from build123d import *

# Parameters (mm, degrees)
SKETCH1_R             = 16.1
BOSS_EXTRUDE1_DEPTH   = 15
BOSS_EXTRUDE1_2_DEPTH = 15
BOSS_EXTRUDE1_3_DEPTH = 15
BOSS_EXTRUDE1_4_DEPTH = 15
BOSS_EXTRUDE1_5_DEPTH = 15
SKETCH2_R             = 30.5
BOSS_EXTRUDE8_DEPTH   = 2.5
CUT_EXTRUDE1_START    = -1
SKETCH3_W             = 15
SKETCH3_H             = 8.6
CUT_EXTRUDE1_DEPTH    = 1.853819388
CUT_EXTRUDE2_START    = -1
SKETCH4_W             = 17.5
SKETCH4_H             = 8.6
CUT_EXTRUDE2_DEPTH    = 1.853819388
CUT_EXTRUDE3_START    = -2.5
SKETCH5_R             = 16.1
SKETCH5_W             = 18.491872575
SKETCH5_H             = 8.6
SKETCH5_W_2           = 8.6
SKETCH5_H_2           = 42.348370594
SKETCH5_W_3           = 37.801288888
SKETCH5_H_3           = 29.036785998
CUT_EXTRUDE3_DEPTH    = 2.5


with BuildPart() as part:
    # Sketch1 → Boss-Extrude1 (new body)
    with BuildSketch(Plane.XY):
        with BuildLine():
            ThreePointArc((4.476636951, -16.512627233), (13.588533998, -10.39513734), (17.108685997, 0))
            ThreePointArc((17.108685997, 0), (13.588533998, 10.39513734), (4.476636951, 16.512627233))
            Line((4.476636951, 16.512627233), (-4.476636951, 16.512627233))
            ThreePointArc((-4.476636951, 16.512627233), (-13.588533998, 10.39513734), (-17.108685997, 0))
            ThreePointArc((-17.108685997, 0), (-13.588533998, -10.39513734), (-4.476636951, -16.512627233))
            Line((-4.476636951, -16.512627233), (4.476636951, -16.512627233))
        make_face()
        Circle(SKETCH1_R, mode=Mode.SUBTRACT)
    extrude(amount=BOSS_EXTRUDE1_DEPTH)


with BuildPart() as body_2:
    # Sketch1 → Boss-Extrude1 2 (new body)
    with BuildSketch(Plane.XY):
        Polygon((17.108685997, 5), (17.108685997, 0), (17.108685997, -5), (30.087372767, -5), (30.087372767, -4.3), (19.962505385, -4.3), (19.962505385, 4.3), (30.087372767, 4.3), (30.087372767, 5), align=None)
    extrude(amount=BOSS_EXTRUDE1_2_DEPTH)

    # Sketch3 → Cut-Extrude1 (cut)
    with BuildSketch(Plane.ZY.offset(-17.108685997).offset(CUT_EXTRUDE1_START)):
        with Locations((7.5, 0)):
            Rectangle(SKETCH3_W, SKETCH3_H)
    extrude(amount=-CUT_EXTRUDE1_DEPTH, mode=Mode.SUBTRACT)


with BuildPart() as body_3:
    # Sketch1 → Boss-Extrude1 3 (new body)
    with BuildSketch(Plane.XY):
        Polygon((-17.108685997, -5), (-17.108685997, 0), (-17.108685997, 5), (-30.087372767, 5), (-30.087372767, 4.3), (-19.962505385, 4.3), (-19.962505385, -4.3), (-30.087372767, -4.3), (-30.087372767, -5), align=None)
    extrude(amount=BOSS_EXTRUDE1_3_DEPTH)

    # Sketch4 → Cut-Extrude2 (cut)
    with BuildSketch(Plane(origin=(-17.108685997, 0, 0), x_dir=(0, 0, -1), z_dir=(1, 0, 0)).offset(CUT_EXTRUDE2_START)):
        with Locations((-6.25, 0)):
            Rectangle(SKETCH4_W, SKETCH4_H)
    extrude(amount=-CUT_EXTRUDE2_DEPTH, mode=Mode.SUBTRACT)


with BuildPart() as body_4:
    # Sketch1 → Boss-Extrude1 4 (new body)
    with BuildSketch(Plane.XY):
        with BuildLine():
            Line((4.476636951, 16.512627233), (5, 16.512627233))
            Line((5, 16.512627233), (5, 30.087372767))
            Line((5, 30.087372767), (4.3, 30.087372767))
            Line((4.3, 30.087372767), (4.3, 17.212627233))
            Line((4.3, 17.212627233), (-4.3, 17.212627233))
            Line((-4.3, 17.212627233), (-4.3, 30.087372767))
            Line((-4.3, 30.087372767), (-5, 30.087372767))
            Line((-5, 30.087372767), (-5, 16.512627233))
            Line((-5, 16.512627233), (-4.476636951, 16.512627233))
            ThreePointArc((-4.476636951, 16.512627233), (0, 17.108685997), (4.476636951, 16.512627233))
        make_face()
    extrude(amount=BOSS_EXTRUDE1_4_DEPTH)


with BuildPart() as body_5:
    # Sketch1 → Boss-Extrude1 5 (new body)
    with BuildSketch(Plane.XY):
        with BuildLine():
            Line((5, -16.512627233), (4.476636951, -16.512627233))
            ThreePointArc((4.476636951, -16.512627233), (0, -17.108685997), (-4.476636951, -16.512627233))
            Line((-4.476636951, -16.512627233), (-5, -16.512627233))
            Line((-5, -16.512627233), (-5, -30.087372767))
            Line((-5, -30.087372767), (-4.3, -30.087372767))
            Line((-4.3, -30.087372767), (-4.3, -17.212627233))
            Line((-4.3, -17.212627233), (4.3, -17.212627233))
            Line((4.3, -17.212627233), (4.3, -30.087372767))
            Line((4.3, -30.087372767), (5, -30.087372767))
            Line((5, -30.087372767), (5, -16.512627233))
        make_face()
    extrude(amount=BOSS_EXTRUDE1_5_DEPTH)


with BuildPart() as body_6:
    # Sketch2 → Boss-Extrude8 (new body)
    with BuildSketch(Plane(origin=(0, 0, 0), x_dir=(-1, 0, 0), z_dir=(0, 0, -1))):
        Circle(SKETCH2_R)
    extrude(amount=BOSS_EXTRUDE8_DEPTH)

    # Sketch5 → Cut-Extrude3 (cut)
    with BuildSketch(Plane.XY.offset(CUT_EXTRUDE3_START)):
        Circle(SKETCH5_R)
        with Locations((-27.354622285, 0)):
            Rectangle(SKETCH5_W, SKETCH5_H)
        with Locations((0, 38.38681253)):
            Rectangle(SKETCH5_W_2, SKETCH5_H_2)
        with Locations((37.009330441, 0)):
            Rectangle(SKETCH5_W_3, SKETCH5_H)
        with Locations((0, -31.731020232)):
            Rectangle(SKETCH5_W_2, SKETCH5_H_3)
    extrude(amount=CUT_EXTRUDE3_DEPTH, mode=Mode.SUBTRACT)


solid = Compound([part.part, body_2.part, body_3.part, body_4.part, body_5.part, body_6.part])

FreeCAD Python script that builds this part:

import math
import FreeCAD as App
import Part
import Sketcher
Q = App.Units.Quantity


def add_polygon(sketch, points):
    """Adds a closed chain of lines whose ends are joined by coincident constraints."""
    first, n = sketch.GeometryCount, len(points)
    for a, b in zip(points, points[1:] + points[:1]):
        sketch.addGeometry(Part.LineSegment(App.Vector(*a, 0), App.Vector(*b, 0)), False)
    for i in range(n):
        sketch.addConstraint(Sketcher.Constraint("Coincident", first + i, 2, first + (i + 1) % n, 1))

doc = App.newDocument("Part")
body = doc.addObject("PartDesign::Body", "Body")

sketch1 = body.newObject("Sketcher::SketchObject", "Sketch")
sketch1.AttachmentSupport = (doc.getObject("XY_Plane"), [""])
sketch1.MapMode = "FlatFace"
sketch1.addGeometry([
    Part.ArcOfCircle(Part.Circle(App.Vector(0, 0, 0), App.Vector(0, 0, 1), 17), math.radians(-75), math.radians(0)),
    Part.ArcOfCircle(Part.Circle(App.Vector(0, 0, 0), App.Vector(0, 0, 1), 17), math.radians(0), math.radians(75)),
    Part.LineSegment(App.Vector(4, 17, 0), App.Vector(-4, 17, 0)),
    Part.ArcOfCircle(Part.Circle(App.Vector(0, 0, 0), App.Vector(0, 0, 1), 17), math.radians(105), math.radians(180)),
    Part.ArcOfCircle(Part.Circle(App.Vector(0, 0, 0), App.Vector(0, 0, 1), 17), math.radians(-180), math.radians(-105)),
    Part.LineSegment(App.Vector(-4, -17, 0), App.Vector(4, -17, 0)),
    Part.Circle(App.Vector(0, 0, 0), App.Vector(0, 0, 1), 16),
], False)
sketch1.addConstraint([
    Sketcher.Constraint("Tangent", 0, 2, 1, 1),
    Sketcher.Constraint("Coincident", 1, 2, 2, 1),
    Sketcher.Constraint("Coincident", 2, 2, 3, 1),
    Sketcher.Constraint("Tangent", 3, 2, 4, 1),
    Sketcher.Constraint("Coincident", 4, 2, 5, 1),
    Sketcher.Constraint("Coincident", 5, 2, 0, 1),
    Sketcher.Constraint("Horizontal", 2),
    Sketcher.Constraint("Horizontal", 5),
    Sketcher.Constraint("Coincident", 0, 3, -1, 1),
    Sketcher.Constraint("Coincident", 3, 3, -1, 1),
    Sketcher.Constraint("Coincident", 6, 3, -1, 1),
    Sketcher.Constraint("Equal", 0, 1),
    Sketcher.Constraint("Equal", 1, 3),
    Sketcher.Constraint("Equal", 3, 4),
    Sketcher.Constraint("PointOnObject", 0, 2, -1),
    Sketcher.Constraint("PointOnObject", 3, 2, -1),
    Sketcher.Constraint("Vertical", 2, 2, 4, 2),
    Sketcher.Constraint("Diameter", 6, Q("32.2 mm")),
    Sketcher.Constraint("Radius", 0, Q("17.108686 mm")),
    Sketcher.Constraint("DistanceX", 2, 2, 2, 1, Q("8.953274 mm")),
])
pad1 = body.newObject("PartDesign::Pad", "Pad")
pad1.Profile = sketch1
pad1.Length = 15
body2 = doc.addObject("PartDesign::Body", "Body001")

sketch2 = body2.newObject("Sketcher::SketchObject", "Sketch001")
sketch2.AttachmentSupport = (doc.getObject("XY_Plane001"), [""])
sketch2.MapMode = "FlatFace"
add_polygon(sketch2, [(17.1, 5), (17.1, -5), (30.1, -5), (30.1, -4.3), (20, -4.3), (20, 4.3), (30.1, 4.3), (30.1, 5)])
sketch2.addConstraint([
    Sketcher.Constraint("Vertical", 0),
    Sketcher.Constraint("Horizontal", 1),
    Sketcher.Constraint("Vertical", 2),
    Sketcher.Constraint("Horizontal", 3),
    Sketcher.Constraint("Vertical", 4),
    Sketcher.Constraint("Horizontal", 5),
    Sketcher.Constraint("Vertical", 6),
    Sketcher.Constraint("Horizontal", 7),
    Sketcher.Constraint("Symmetric", 2, 2, 5, 2, -1),
    Sketcher.Constraint("Equal", 2, 6),
    Sketcher.Constraint("DistanceY", 0, 2, 0, 1, Q("10 mm")),
    Sketcher.Constraint("DistanceY", 2, 1, 2, 2, Q("0.7 mm")),
    Sketcher.Constraint("DistanceX", 1, 1, 1, 2, Q("12.978687 mm")),
    Sketcher.Constraint("DistanceX", 3, 2, 3, 1, Q("10.124867 mm")),
    Sketcher.Constraint("DistanceX", -1, 1, 0, 2, Q("17.108686 mm")),
])
pad2 = body2.newObject("PartDesign::Pad", "Pad001")
pad2.Profile = sketch2
pad2.Length = 15

sketch3 = body2.newObject("Sketcher::SketchObject", "Sketch002")
sketch3.AttachmentSupport = (doc.getObject("YZ_Plane001"), [""])
sketch3.MapMode = "FlatFace"
sketch3.AttachmentOffset = App.Placement(App.Vector(0, 0, 18.108686), App.Rotation())
add_polygon(sketch3, [(4, 0), (-4, 0), (-4, 15), (4, 15)])
sketch3.addConstraint([
    Sketcher.Constraint("Horizontal", 0),
    Sketcher.Constraint("Vertical", 1),
    Sketcher.Constraint("Horizontal", 2),
    Sketcher.Constraint("Vertical", 3),
    Sketcher.Constraint("Symmetric", 0, 2, 3, 2, -1, 1),
    Sketcher.Constraint("DistanceY", 1, 1, 1, 2, Q("15 mm")),
    Sketcher.Constraint("DistanceX", 0, 2, 0, 1, Q("8.6 mm")),
])
pocket1 = body2.newObject("PartDesign::Pocket", "Pocket")
pocket1.Profile = sketch3
pocket1.Length = 1.853819
pocket1.Reversed = True
body3 = doc.addObject("PartDesign::Body", "Body002")

sketch4 = body3.newObject("Sketcher::SketchObject", "Sketch003")
sketch4.AttachmentSupport = (doc.getObject("XY_Plane002"), [""])
sketch4.MapMode = "FlatFace"
add_polygon(sketch4, [(-17.1, -5), (-17.1, 5), (-30.1, 5), (-30.1, 4.3), (-20, 4.3), (-20, -4.3), (-30.1, -4.3), (-30.1, -5)])
sketch4.addConstraint([
    Sketcher.Constraint("Vertical", 0),
    Sketcher.Constraint("Horizontal", 1),
    Sketcher.Constraint("Vertical", 2),
    Sketcher.Constraint("Horizontal", 3),
    Sketcher.Constraint("Vertical", 4),
    Sketcher.Constraint("Horizontal", 5),
    Sketcher.Constraint("Vertical", 6),
    Sketcher.Constraint("Horizontal", 7),
    Sketcher.Constraint("Symmetric", 2, 2, 5, 2, -1),
    Sketcher.Constraint("Equal", 2, 6),
    Sketcher.Constraint("DistanceY", 0, 1, 0, 2, Q("10 mm")),
    Sketcher.Constraint("DistanceY", 2, 2, 2, 1, Q("0.7 mm")),
    Sketcher.Constraint("DistanceX", 1, 2, 1, 1, Q("12.978687 mm")),
    Sketcher.Constraint("DistanceX", 3, 1, 3, 2, Q("10.124867 mm")),
    Sketcher.Constraint("DistanceX", 0, 2, -1, 1, Q("17.108686 mm")),
])
pad3 = body3.newObject("PartDesign::Pad", "Pad002")
pad3.Profile = sketch4
pad3.Length = 15

sketch5 = body3.newObject("Sketcher::SketchObject", "Sketch004")
sketch5.AttachmentSupport = (doc.getObject("YZ_Plane002"), [""])
sketch5.MapMode = "FlatFace"
sketch5.AttachmentOffset = App.Placement(App.Vector(0, 0, -18.108686), App.Rotation())
add_polygon(sketch5, [(4, 15), (-4, 15), (-4, -2), (4, -2)])
sketch5.addConstraint([
    Sketcher.Constraint("Horizontal", 0),
    Sketcher.Constraint("Vertical", 1),
    Sketcher.Constraint("Horizontal", 2),
    Sketcher.Constraint("Vertical", 3),
    Sketcher.Constraint("DistanceX", 0, 2, 0, 1, Q("8.6 mm")),
    Sketcher.Constraint("DistanceY", 1, 2, 1, 1, Q("17.5 mm")),
    Sketcher.Constraint("DistanceY", -1, 1, 0, 2, Q("15 mm")),
    Sketcher.Constraint("DistanceX", 0, 2, -1, 1, Q("4.3 mm")),
])
pocket2 = body3.newObject("PartDesign::Pocket", "Pocket001")
pocket2.Profile = sketch5
pocket2.Length = 1.853819
body4 = doc.addObject("PartDesign::Body", "Body003")

sketch6 = body4.newObject("Sketcher::SketchObject", "Sketch005")
sketch6.AttachmentSupport = (doc.getObject("XY_Plane003"), [""])
sketch6.MapMode = "FlatFace"
sketch6.addGeometry([
    Part.LineSegment(App.Vector(4.5, 16.5, 0), App.Vector(5, 16.5, 0)),
    Part.LineSegment(App.Vector(5, 16.5, 0), App.Vector(5, 30.1, 0)),
    Part.LineSegment(App.Vector(5, 30.1, 0), App.Vector(4.3, 30.1, 0)),
    Part.LineSegment(App.Vector(4.3, 30.1, 0), App.Vector(4.3, 17.2, 0)),
    Part.LineSegment(App.Vector(4.3, 17.2, 0), App.Vector(-4.3, 17.2, 0)),
    Part.LineSegment(App.Vector(-4.3, 17.2, 0), App.Vector(-4.3, 30.1, 0)),
    Part.LineSegment(App.Vector(-4.3, 30.1, 0), App.Vector(-5, 30.1, 0)),
    Part.LineSegment(App.Vector(-5, 30.1, 0), App.Vector(-5, 16.5, 0)),
    Part.LineSegment(App.Vector(-5, 16.5, 0), App.Vector(-4.5, 16.5, 0)),
    Part.ArcOfCircle(Part.Circle(App.Vector(0, 0, 0), App.Vector(0, 0, 1), 17.1), math.radians(75), math.radians(105)),
], False)
sketch6.addConstraint([
    Sketcher.Constraint("Coincident", 0, 2, 1, 1),
    Sketcher.Constraint("Coincident", 1, 2, 2, 1),
    Sketcher.Constraint("Coincident", 2, 2, 3, 1),
    Sketcher.Constraint("Coincident", 3, 2, 4, 1),
    Sketcher.Constraint("Coincident", 4, 2, 5, 1),
    Sketcher.Constraint("Coincident", 5, 2, 6, 1),
    Sketcher.Constraint("Coincident", 6, 2, 7, 1),
    Sketcher.Constraint("Coincident", 7, 2, 8, 1),
    Sketcher.Constraint("Coincident", 8, 2, 9, 2),
    Sketcher.Constraint("Coincident", 9, 1, 0, 1),
    Sketcher.Constraint("Horizontal", 0),
    Sketcher.Constraint("Vertical", 1),
    Sketcher.Constraint("Horizontal", 2),
    Sketcher.Constraint("Vertical", 3),
    Sketcher.Constraint("Horizontal", 4),
    Sketcher.Constraint("Vertical", 5),
    Sketcher.Constraint("Horizontal", 6),
    Sketcher.Constraint("Vertical", 7),
    Sketcher.Constraint("Horizontal", 8),
    Sketcher.Constraint("Coincident", 9, 3, -1, 1),
    Sketcher.Constraint("Symmetric", 2, 2, 5, 2, -2),
    Sketcher.Constraint("Symmetric", 0, 2, 7, 2, -2),
    Sketcher.Constraint("DistanceX", 2, 2, 2, 1, Q("0.7 mm")),
    Sketcher.Constraint("DistanceX", 4, 2, 4, 1, Q("8.6 mm")),
    Sketcher.Constraint("DistanceY", 0, 2, 3, 2, Q("0.7 mm")),
    Sketcher.Constraint("Radius", 9, Q("17.108686 mm")),
    Sketcher.Constraint("DistanceX", 0, 1, 0, 2, Q("0.523363 mm")),
    Sketcher.Constraint("DistanceY", 1, 1, 1, 2, Q("13.574746 mm")),
])
pad4 = body4.newObject("PartDesign::Pad", "Pad003")
pad4.Profile = sketch6
pad4.Length = 15
body5 = doc.addObject("PartDesign::Body", "Body004")

sketch7 = body5.newObject("Sketcher::SketchObject", "Sketch006")
sketch7.AttachmentSupport = (doc.getObject("XY_Plane004"), [""])
sketch7.MapMode = "FlatFace"
sketch7.addGeometry([
    Part.LineSegment(App.Vector(5, -16.5, 0), App.Vector(4.5, -16.5, 0)),
    Part.ArcOfCircle(Part.Circle(App.Vector(0, 0, 0), App.Vector(0, 0, 1), 17.1), math.radians(-105), math.radians(-75)),
    Part.LineSegment(App.Vector(-4.5, -16.5, 0), App.Vector(-5, -16.5, 0)),
    Part.LineSegment(App.Vector(-5, -16.5, 0), App.Vector(-5, -30.1, 0)),
    Part.LineSegment(App.Vector(-5, -30.1, 0), App.Vector(-4.3, -30.1, 0)),
    Part.LineSegment(App.Vector(-4.3, -30.1, 0), App.Vector(-4.3, -17.2, 0)),
    Part.LineSegment(App.Vector(-4.3, -17.2, 0), App.Vector(4.3, -17.2, 0)),
    Part.LineSegment(App.Vector(4.3, -17.2, 0), App.Vector(4.3, -30.1, 0)),
    Part.LineSegment(App.Vector(4.3, -30.1, 0), App.Vector(5, -30.1, 0)),
    Part.LineSegment(App.Vector(5, -30.1, 0), App.Vector(5, -16.5, 0)),
], False)
sketch7.addConstraint([
    Sketcher.Constraint("Coincident", 0, 2, 1, 2),
    Sketcher.Constraint("Coincident", 1, 1, 2, 1),
    Sketcher.Constraint("Coincident", 2, 2, 3, 1),
    Sketcher.Constraint("Coincident", 3, 2, 4, 1),
    Sketcher.Constraint("Coincident", 4, 2, 5, 1),
    Sketcher.Constraint("Coincident", 5, 2, 6, 1),
    Sketcher.Constraint("Coincident", 6, 2, 7, 1),
    Sketcher.Constraint("Coincident", 7, 2, 8, 1),
    Sketcher.Constraint("Coincident", 8, 2, 9, 1),
    Sketcher.Constraint("Coincident", 9, 2, 0, 1),
    Sketcher.Constraint("Horizontal", 0),
    Sketcher.Constraint("Horizontal", 2),
    Sketcher.Constraint("Vertical", 3),
    Sketcher.Constraint("Horizontal", 4),
    Sketcher.Constraint("Vertical", 5),
    Sketcher.Constraint("Horizontal", 6),
    Sketcher.Constraint("Vertical", 7),
    Sketcher.Constraint("Horizontal", 8),
    Sketcher.Constraint("Vertical", 9),
    Sketcher.Constraint("Coincident", 1, 3, -1, 1),
    Sketcher.Constraint("Symmetric", 4, 2, 7, 2, -2),
    Sketcher.Constraint("Symmetric", 2, 2, 9, 2, -2),
    Sketcher.Constraint("DistanceX", 4, 1, 4, 2, Q("0.7 mm")),
    Sketcher.Constraint("DistanceX", 6, 1, 6, 2, Q("8.6 mm")),
    Sketcher.Constraint("DistanceY", 5, 2, 1, 1, Q("0.7 mm")),
    Sketcher.Constraint("Radius", 1, Q("17.108686 mm")),
    Sketcher.Constraint("DistanceX", 0, 2, 0, 1, Q("0.523363 mm")),
    Sketcher.Constraint("DistanceY", 3, 2, 3, 1, Q("13.574746 mm")),
])
pad5 = body5.newObject("PartDesign::Pad", "Pad004")
pad5.Profile = sketch7
pad5.Length = 15
body6 = doc.addObject("PartDesign::Body", "Body005")

sketch8 = body6.newObject("Sketcher::SketchObject", "Sketch007")
sketch8.AttachmentSupport = (doc.getObject("XY_Plane005"), [""])
sketch8.MapMode = "FlatFace"
sketch8.addGeometry(Part.Circle(App.Vector(0, 0, 0), App.Vector(0, 0, 1), 30), False)
sketch8.addConstraint([
    Sketcher.Constraint("Coincident", 0, 3, -1, 1),
    Sketcher.Constraint("Diameter", 0, Q("61 mm")),
])
pad6 = body6.newObject("PartDesign::Pad", "Pad005")
pad6.Profile = sketch8
pad6.Length = 2.5
pad6.Reversed = True

sketch9 = body6.newObject("Sketcher::SketchObject", "Sketch008")
sketch9.AttachmentSupport = (doc.getObject("XY_Plane005"), [""])
sketch9.MapMode = "FlatFace"
sketch9.AttachmentOffset = App.Placement(App.Vector(0, 0, -2.5), App.Rotation())
sketch9.addGeometry(Part.Circle(App.Vector(0, 0, 0), App.Vector(0, 0, 1), 16), False)
add_polygon(sketch9, [(-37, 4), (-37, -4), (-18, -4), (-18, 4)])
add_polygon(sketch9, [(-4, 60), (-4, 17), (4, 17), (4, 60)])
add_polygon(sketch9, [(18, 4), (18, -4), (56, -4), (56, 4)])
add_polygon(sketch9, [(-4, -17), (-4, -46), (4, -46), (4, -17)])
sketch9.addConstraint([
    Sketcher.Constraint("Vertical", 1),
    Sketcher.Constraint("Horizontal", 2),
    Sketcher.Constraint("Vertical", 3),
    Sketcher.Constraint("Horizontal", 4),
    Sketcher.Constraint("Vertical", 5),
    Sketcher.Constraint("Horizontal", 6),
    Sketcher.Constraint("Vertical", 7),
    Sketcher.Constraint("Horizontal", 8),
    Sketcher.Constraint("Vertical", 9),
    Sketcher.Constraint("Horizontal", 10),
    Sketcher.Constraint("Vertical", 11),
    Sketcher.Constraint("Horizontal", 12),
    Sketcher.Constraint("Vertical", 13),
    Sketcher.Constraint("Horizontal", 14),
    Sketcher.Constraint("Vertical", 15),
    Sketcher.Constraint("Horizontal", 16),
    Sketcher.Constraint("Coincident", 0, 3, -1, 1),
    Sketcher.Constraint("Symmetric", 3, 2, 9, 2, -1, 1),
    Sketcher.Constraint("Symmetric", 5, 2, 15, 2, -1, 1),
    Sketcher.Constraint("Horizontal", 2, 2, 9, 2),
    Sketcher.Constraint("Horizontal", 4, 2, 11, 2),
    Sketcher.Constraint("Vertical", 8, 2, 13, 2),
    Sketcher.Constraint("Vertical", 7, 2, 14, 2),
    Sketcher.Constraint("Equal", 16, 1),
    Sketcher.Constraint("Diameter", 0, Q("32.2 mm")),
    Sketcher.Constraint("DistanceX", 6, 1, 6, 2, Q("8.6 mm")),
    Sketcher.Constraint("DistanceX", 10, 1, 10, 2, Q("37.801289 mm")),
    Sketcher.Constraint("DistanceY", 5, 2, 5, 1, Q("42.348371 mm")),
    Sketcher.Constraint("DistanceX", 2, 1, 2, 2, Q("18.491873 mm")),
    Sketcher.Constraint("DistanceY", 13, 2, 13, 1, Q("29.036786 mm")),
    Sketcher.Constraint("DistanceX", 1, 2, -1, 1, Q("36.600559 mm")),
    Sketcher.Constraint("DistanceY", -1, 1, 5, 2, Q("17.212627 mm")),
])
pocket3 = body6.newObject("PartDesign::Pocket", "Pocket002")
pocket3.Profile = sketch9
pocket3.Length = 2.5
pocket3.Reversed = True

doc.recompute()
